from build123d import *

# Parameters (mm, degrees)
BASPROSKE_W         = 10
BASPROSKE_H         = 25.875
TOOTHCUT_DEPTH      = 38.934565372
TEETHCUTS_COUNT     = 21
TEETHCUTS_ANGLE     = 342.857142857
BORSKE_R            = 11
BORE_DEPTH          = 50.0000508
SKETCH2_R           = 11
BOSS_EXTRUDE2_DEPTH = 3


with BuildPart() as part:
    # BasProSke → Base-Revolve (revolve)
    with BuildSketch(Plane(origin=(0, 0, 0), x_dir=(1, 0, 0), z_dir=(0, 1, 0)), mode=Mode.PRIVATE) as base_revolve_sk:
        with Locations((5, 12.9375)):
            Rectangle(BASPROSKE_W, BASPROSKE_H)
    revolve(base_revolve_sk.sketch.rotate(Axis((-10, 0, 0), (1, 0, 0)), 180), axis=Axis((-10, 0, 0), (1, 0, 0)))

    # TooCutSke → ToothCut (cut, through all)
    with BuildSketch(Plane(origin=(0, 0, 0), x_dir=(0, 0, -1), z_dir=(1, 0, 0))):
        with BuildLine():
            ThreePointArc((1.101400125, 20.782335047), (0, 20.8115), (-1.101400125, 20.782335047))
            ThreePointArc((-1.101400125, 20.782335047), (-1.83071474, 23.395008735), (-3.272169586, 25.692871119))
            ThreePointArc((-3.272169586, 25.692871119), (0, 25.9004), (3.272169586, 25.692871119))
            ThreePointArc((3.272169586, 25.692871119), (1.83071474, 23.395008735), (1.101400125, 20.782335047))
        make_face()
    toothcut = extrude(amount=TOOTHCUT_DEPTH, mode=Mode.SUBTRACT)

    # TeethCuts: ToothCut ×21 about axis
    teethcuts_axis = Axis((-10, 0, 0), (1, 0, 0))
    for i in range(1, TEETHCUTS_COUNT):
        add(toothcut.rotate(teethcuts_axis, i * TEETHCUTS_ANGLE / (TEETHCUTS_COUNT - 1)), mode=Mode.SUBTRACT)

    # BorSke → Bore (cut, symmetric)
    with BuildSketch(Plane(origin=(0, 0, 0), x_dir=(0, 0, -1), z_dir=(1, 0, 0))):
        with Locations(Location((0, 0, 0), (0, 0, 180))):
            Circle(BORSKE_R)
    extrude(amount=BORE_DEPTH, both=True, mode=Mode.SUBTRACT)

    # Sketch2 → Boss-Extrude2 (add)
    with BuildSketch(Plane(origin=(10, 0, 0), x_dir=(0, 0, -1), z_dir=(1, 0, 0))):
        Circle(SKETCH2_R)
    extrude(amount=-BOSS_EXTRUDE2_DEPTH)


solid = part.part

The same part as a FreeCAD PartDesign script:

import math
import FreeCAD as App
import Part
import Sketcher
from FreeCAD import Vector

doc = App.newDocument("Part")
params = doc.addObject("Spreadsheet::Sheet", "Params")
for row, (alias, value) in enumerate([
    ("sketch1_width", "10 mm"),
    ("revolution_angle", "360 deg"),
    ("sketch2_radius", "9.45 mm"),
    ("sketch3_diameter", "22 mm"),
    ("pocket2_length", "100.000102 mm"),
    ("sketch4_diameter", "22 mm"),
    ("pad1_length", "3 mm"),
], start=1):
    params.set(f"A{row}", alias)
    params.set(f"B{row}", "=" + value)
    params.setAlias(f"B{row}", alias)

body = doc.addObject("PartDesign::Body", "Body")

# Sketch on XZ plane
sketch1 = body.newObject("Sketcher::SketchObject", "Sketch")
sketch1.AttachmentSupport = (doc.getObject("XZ_Plane"), [""])
sketch1.MapMode = "FlatFace"
sketch1.addGeometry([
    Part.LineSegment(Vector(0, -26, 0), Vector(0, 0, 0)),
    Part.LineSegment(Vector(0, 0, 0), Vector(10, 0, 0)),
    Part.LineSegment(Vector(10, 0, 0), Vector(10, -26, 0)),
    Part.LineSegment(Vector(10, -26, 0), Vector(0, -26, 0)),
], False)
sketch1.addConstraint([
    Sketcher.Constraint("Coincident", 0, 2, 1, 1),
    Sketcher.Constraint("Coincident", 1, 2, 2, 1),
    Sketcher.Constraint("Coincident", 2, 2, 3, 1),
    Sketcher.Constraint("Coincident", 3, 2, 0, 1),
    Sketcher.Constraint("Vertical", 0),
    Sketcher.Constraint("Horizontal", 1),
    Sketcher.Constraint("Vertical", 2),
    Sketcher.Constraint("Horizontal", 3),
    Sketcher.Constraint("Coincident", 0, 2, -1, 1),
    Sketcher.Constraint("DistanceX", 1, 1, 1, 2, 10.0),
    Sketcher.Constraint("DistanceY", 0, 1, 0, 2, 25.875),
])
sketch1.setExpression("Constraints[9]", "Params.sketch1_width")
revolution = body.newObject("PartDesign::Revolution", "Revolution")
revolution.Profile = sketch1
revolution.ReferenceAxis = (sketch1, ["H_Axis"])
revolution.setExpression("Angle", "Params.revolution_angle")

# Sketch on YZ plane
sketch2 = body.newObject("Sketcher::SketchObject", "Sketch001")
sketch2.AttachmentSupport = (doc.getObject("YZ_Plane"), [""])
sketch2.MapMode = "FlatFace"
sketch2.addGeometry([
    Part.ArcOfCircle(Part.Circle(Vector(0, 0, 0), Vector(0, 0, 1), 20.8), math.radians(-3.03), math.radians(3.03)),
    Part.ArcOfCircle(Part.Circle(Vector(19.6, -10.5, 0), Vector(0, 0, 1), 9.4), math.radians(50), math.radians(83)),
    Part.ArcOfCircle(Part.Circle(Vector(0, 0, 0), Vector(0, 0, 1), 25.9), math.radians(-7.26), math.radians(7.26)),
    Part.ArcOfCircle(Part.Circle(Vector(19.6, 10.5, 0), Vector(0, 0, 1), 9.4), math.radians(-83), math.radians(-50)),
], False)
sketch2.addConstraint([
    Sketcher.Constraint("Coincident", 0, 1, 1, 2),
    Sketcher.Constraint("Coincident", 1, 1, 2, 1),
    Sketcher.Constraint("Coincident", 2, 2, 3, 2),
    Sketcher.Constraint("Coincident", 3, 1, 0, 2),
    Sketcher.Constraint("Coincident", 0, 3, -1, 1),
    Sketcher.Constraint("Coincident", 2, 3, -1, 1),
    Sketcher.Constraint("Equal", 1, 3),
    Sketcher.Constraint("Symmetric", 1, 3, 3, 3, -1),
    Sketcher.Constraint("Radius", 1, 9.45),
    Sketcher.Constraint("Radius", 0, 20.8115),
    Sketcher.Constraint("Radius", 2, 25.9004),
    Sketcher.Constraint("DistanceY", 0, 1, -1, 1, 1.1014),
    Sketcher.Constraint("DistanceX", -1, 1, 1, 3, 19.574191),
])
sketch2.setExpression("Constraints[8]", "Params.sketch2_radius")
pocket1 = body.newObject("PartDesign::Pocket", "Pocket")
pocket1.Profile = sketch2
pocket1.Type = "ThroughAll"
pocket1.Reversed = True
doc.recompute()

polarpattern = body.newObject("PartDesign::PolarPattern", "PolarPattern")
polarpattern.Originals = [pocket1]
polarpattern.Axis = (doc.getObject("X_Axis"), [""])
polarpattern.Angle = 360
polarpattern.Occurrences = 21
body.Tip = polarpattern

# Sketch on YZ plane
sketch3 = body.newObject("Sketcher::SketchObject", "Sketch002")
sketch3.AttachmentSupport = (doc.getObject("YZ_Plane"), [""])
sketch3.MapMode = "FlatFace"
sketch3.addGeometry(Part.Circle(Vector(0, 0, 0), Vector(0, 0, 1), 11), False)
sketch3.addConstraint([
    Sketcher.Constraint("Coincident", 0, 3, -1, 1),
    Sketcher.Constraint("Diameter", 0, 22.0),
])
sketch3.setExpression("Constraints[1]", "Params.sketch3_diameter")
pocket2 = body.newObject("PartDesign::Pocket", "Pocket001")
pocket2.Profile = sketch3
pocket2.setExpression("Length", "Params.pocket2_length")
pocket2.Midplane = True

# Sketch on YZ plane
sketch4 = body.newObject("Sketcher::SketchObject", "Sketch003")
sketch4.AttachmentSupport = (doc.getObject("YZ_Plane"), [""])
sketch4.MapMode = "FlatFace"
sketch4.AttachmentOffset = App.Placement(Vector(0, 0, 10), App.Rotation())
sketch4.addGeometry(Part.Circle(Vector(0, 0, 0), Vector(0, 0, 1), 11), False)
sketch4.addConstraint([
    Sketcher.Constraint("Coincident", 0, 3, -1, 1),
    Sketcher.Constraint("Diameter", 0, 22.0),
])
sketch4.setExpression("Constraints[1]", "Params.sketch4_diameter")
pad1 = body.newObject("PartDesign::Pad", "Pad")
pad1.Profile = sketch4
pad1.setExpression("Length", "Params.pad1_length")
pad1.Reversed = True

doc.recompute()
